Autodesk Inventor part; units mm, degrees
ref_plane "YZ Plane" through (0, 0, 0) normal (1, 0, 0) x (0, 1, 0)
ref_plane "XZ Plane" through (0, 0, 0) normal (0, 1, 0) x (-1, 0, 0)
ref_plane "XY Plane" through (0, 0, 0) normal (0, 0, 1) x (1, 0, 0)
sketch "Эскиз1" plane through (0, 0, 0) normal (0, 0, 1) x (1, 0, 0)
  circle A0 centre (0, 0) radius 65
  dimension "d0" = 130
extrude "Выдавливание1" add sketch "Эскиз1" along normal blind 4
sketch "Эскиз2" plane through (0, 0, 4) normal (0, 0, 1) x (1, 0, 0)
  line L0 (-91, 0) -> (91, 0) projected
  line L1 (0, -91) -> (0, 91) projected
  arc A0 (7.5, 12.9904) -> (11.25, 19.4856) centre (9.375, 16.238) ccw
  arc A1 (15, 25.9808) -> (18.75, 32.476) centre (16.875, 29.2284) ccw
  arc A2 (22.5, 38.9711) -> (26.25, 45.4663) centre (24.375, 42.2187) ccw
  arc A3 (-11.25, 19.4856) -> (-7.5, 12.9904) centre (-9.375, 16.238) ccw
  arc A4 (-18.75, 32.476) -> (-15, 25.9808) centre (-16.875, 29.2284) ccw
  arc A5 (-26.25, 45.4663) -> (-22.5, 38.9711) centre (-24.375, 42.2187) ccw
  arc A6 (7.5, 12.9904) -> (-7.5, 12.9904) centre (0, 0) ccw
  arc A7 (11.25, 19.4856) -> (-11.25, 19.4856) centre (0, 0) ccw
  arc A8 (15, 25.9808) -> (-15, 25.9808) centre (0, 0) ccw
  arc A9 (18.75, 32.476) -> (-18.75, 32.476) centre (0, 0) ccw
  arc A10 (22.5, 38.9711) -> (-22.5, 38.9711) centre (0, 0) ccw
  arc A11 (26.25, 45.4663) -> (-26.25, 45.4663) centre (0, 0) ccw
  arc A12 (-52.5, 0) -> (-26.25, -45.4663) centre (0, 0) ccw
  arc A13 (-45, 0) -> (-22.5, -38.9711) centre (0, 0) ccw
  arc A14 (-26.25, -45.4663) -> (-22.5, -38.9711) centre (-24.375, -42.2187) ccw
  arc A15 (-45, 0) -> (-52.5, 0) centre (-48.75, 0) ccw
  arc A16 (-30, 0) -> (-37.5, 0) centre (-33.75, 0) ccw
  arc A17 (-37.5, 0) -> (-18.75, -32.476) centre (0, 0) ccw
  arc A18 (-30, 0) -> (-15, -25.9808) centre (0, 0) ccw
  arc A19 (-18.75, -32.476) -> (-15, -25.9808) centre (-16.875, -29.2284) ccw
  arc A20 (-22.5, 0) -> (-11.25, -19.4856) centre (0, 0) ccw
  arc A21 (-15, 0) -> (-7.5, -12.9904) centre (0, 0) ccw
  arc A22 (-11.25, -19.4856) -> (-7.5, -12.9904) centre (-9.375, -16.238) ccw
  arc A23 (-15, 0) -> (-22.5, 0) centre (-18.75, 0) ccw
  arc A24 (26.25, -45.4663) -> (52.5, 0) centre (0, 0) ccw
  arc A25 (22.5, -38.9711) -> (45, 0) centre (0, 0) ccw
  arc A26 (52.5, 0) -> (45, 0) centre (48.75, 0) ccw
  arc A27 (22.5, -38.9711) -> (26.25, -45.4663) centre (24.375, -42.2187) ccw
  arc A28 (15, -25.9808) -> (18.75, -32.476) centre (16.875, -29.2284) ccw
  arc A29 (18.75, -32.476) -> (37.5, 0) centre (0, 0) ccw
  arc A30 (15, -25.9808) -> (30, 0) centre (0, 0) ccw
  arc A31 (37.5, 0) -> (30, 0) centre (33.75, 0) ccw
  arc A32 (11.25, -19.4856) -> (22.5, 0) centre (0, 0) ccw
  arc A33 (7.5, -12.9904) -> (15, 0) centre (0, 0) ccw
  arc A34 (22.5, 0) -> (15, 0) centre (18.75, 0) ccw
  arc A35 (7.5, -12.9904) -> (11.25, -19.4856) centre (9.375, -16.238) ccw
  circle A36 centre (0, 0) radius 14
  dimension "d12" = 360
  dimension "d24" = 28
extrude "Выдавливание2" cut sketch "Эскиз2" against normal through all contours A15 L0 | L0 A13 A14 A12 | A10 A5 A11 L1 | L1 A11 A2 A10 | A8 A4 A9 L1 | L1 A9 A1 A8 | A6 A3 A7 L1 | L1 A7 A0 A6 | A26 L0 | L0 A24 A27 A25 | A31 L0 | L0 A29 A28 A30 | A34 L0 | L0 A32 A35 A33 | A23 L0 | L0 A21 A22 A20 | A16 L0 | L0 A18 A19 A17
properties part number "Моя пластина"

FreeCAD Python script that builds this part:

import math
import FreeCAD as App
import Part
import Sketcher
Q = App.Units.Quantity

doc = App.newDocument("Part")
body = doc.addObject("PartDesign::Body", "Body")

sketch1 = body.newObject("Sketcher::SketchObject", "Sketch")
sketch1.AttachmentSupport = (doc.getObject("XY_Plane"), [""])
sketch1.MapMode = "FlatFace"
sketch1.addGeometry(Part.Circle(App.Vector(0, 0, 0), App.Vector(0, 0, 1), 65), False)
sketch1.addConstraint(Sketcher.Constraint("Coincident", 0, 3, -1, 1))
sketch1.addConstraint(Sketcher.Constraint("Diameter", 0, Q("130 mm")))
pad1 = body.newObject("PartDesign::Pad", "Pad")
pad1.Profile = sketch1
pad1.Length = 4

sketch2 = body.newObject("Sketcher::SketchObject", "Sketch001")
sketch2.AttachmentSupport = (doc.getObject("XY_Plane"), [""])
sketch2.MapMode = "FlatFace"
sketch2.AttachmentOffset = App.Placement(App.Vector(0, 0, 4), App.Rotation())
sketch2.addGeometry(Part.ArcOfCircle(Part.Circle(App.Vector(-48.8, 0, 0), App.Vector(0, 0, 1), 3.8), math.radians(0), math.radians(180)), False)
sketch2.addGeometry(Part.ArcOfCircle(Part.Circle(App.Vector(0, 0, 0), App.Vector(0, 0, 1), 52.5), math.radians(180), math.radians(240)), False)
sketch2.addGeometry(Part.ArcOfCircle(Part.Circle(App.Vector(-24.4, -42.2, 0), App.Vector(0, 0, 1), 3.8), math.radians(-120), math.radians(60)), False)
sketch2.addGeometry(Part.ArcOfCircle(Part.Circle(App.Vector(0, 0, 0), App.Vector(0, 0, 1), 45), math.radians(180), math.radians(240)), False)
sketch2.addGeometry(Part.ArcOfCircle(Part.Circle(App.Vector(0, 0, 0), App.Vector(0, 0, 1), 45), math.radians(60), math.radians(120)), False)
sketch2.addGeometry(Part.ArcOfCircle(Part.Circle(App.Vector(24.4, 42.2, 0), App.Vector(0, 0, 1), 3.8), math.radians(-120), math.radians(60)), False)
sketch2.addGeometry(Part.ArcOfCircle(Part.Circle(App.Vector(0, 0, 0), App.Vector(0, 0, 1), 52.5), math.radians(60), math.radians(120)), False)
sketch2.addGeometry(Part.ArcOfCircle(Part.Circle(App.Vector(-24.4, 42.2, 0), App.Vector(0, 0, 1), 3.8), math.radians(120), math.radians(300)), False)
sketch2.addGeometry(Part.ArcOfCircle(Part.Circle(App.Vector(0, 0, 0), App.Vector(0, 0, 1), 30), math.radians(60), math.radians(120)), False)
sketch2.addGeometry(Part.ArcOfCircle(Part.Circle(App.Vector(16.9, 29.2, 0), App.Vector(0, 0, 1), 3.8), math.radians(-120), math.radians(60)), False)
sketch2.addGeometry(Part.ArcOfCircle(Part.Circle(App.Vector(0, 0, 0), App.Vector(0, 0, 1), 37.5), math.radians(60), math.radians(120)), False)
sketch2.addGeometry(Part.ArcOfCircle(Part.Circle(App.Vector(-16.9, 29.2, 0), App.Vector(0, 0, 1), 3.8), math.radians(120), math.radians(300)), False)
sketch2.addGeometry(Part.ArcOfCircle(Part.Circle(App.Vector(0, 0, 0), App.Vector(0, 0, 1), 15), math.radians(60), math.radians(120)), False)
sketch2.addGeometry(Part.ArcOfCircle(Part.Circle(App.Vector(9.4, 16.2, 0), App.Vector(0, 0, 1), 3.8), math.radians(-120), math.radians(60)), False)
sketch2.addGeometry(Part.ArcOfCircle(Part.Circle(App.Vector(0, 0, 0), App.Vector(0, 0, 1), 22.5), math.radians(60), math.radians(120)), False)
sketch2.addGeometry(Part.ArcOfCircle(Part.Circle(App.Vector(-9.4, 16.2, 0), App.Vector(0, 0, 1), 3.8), math.radians(120), math.radians(300)), False)
sketch2.addGeometry(Part.ArcOfCircle(Part.Circle(App.Vector(48.8, 0, 0), App.Vector(0, 0, 1), 3.8), math.radians(0), math.radians(180)), False)
sketch2.addGeometry(Part.ArcOfCircle(Part.Circle(App.Vector(0, 0, 0), App.Vector(0, 0, 1), 45), math.radians(-60), math.radians(0)), False)
sketch2.addGeometry(Part.ArcOfCircle(Part.Circle(App.Vector(24.4, -42.2, 0), App.Vector(0, 0, 1), 3.8), math.radians(120), math.radians(300)), False)
sketch2.addGeometry(Part.ArcOfCircle(Part.Circle(App.Vector(0, 0, 0), App.Vector(0, 0, 1), 52.5), math.radians(-60), math.radians(0)), False)
sketch2.addGeometry(Part.ArcOfCircle(Part.Circle(App.Vector(33.8, 0, 0), App.Vector(0, 0, 1), 3.8), math.radians(0), math.radians(180)), False)
sketch2.addGeometry(Part.ArcOfCircle(Part.Circle(App.Vector(0, 0, 0), App.Vector(0, 0, 1), 30), math.radians(-60), math.radians(0)), False)
sketch2.addGeometry(Part.ArcOfCircle(Part.Circle(App.Vector(16.9, -29.2, 0), App.Vector(0, 0, 1), 3.8), math.radians(120), math.radians(300)), False)
sketch2.addGeometry(Part.ArcOfCircle(Part.Circle(App.Vector(0, 0, 0), App.Vector(0, 0, 1), 37.5), math.radians(-60), math.radians(0)), False)
sketch2.addGeometry(Part.ArcOfCircle(Part.Circle(App.Vector(18.8, 0, 0), App.Vector(0, 0, 1), 3.8), math.radians(0), math.radians(180)), False)
sketch2.addGeometry(Part.ArcOfCircle(Part.Circle(App.Vector(0, 0, 0), App.Vector(0, 0, 1), 15), math.radians(-60), math.radians(0)), False)
sketch2.addGeometry(Part.ArcOfCircle(Part.Circle(App.Vector(9.4, -16.2, 0), App.Vector(0, 0, 1), 3.8), math.radians(120), math.radians(300)), False)
sketch2.addGeometry(Part.ArcOfCircle(Part.Circle(App.Vector(0, 0, 0), App.Vector(0, 0, 1), 22.5), math.radians(-60), math.radians(0)), False)
sketch2.addGeometry(Part.ArcOfCircle(Part.Circle(App.Vector(-18.8, 0, 0), App.Vector(0, 0, 1), 3.8), math.radians(0), math.radians(180)), False)
sketch2.addGeometry(Part.ArcOfCircle(Part.Circle(App.Vector(0, 0, 0), App.Vector(0, 0, 1), 22.5), math.radians(180), math.radians(240)), False)
sketch2.addGeometry(Part.ArcOfCircle(Part.Circle(App.Vector(-9.4, -16.2, 0), App.Vector(0, 0, 1), 3.8), math.radians(-120), math.radians(60)), False)
sketch2.addGeometry(Part.ArcOfCircle(Part.Circle(App.Vector(0, 0, 0), App.Vector(0, 0, 1), 15), math.radians(180), math.radians(240)), False)
sketch2.addGeometry(Part.ArcOfCircle(Part.Circle(App.Vector(-33.8, 0, 0), App.Vector(0, 0, 1), 3.8), math.radians(0), math.radians(180)), False)
sketch2.addGeometry(Part.ArcOfCircle(Part.Circle(App.Vector(0, 0, 0), App.Vector(0, 0, 1), 37.5), math.radians(180), math.radians(240)), False)
sketch2.addGeometry(Part.ArcOfCircle(Part.Circle(App.Vector(-16.9, -29.2, 0), App.Vector(0, 0, 1), 3.8), math.radians(-120), math.radians(60)), False)
sketch2.addGeometry(Part.ArcOfCircle(Part.Circle(App.Vector(0, 0, 0), App.Vector(0, 0, 1), 30), math.radians(180), math.radians(240)), False)
sketch2.addConstraint(Sketcher.Constraint("Tangent", 0, 2, 1, 1))
sketch2.addConstraint(Sketcher.Constraint("Tangent", 1, 2, 2, 1))
sketch2.addConstraint(Sketcher.Constraint("Tangent", 2, 2, 3, 2))
sketch2.addConstraint(Sketcher.Constraint("Tangent", 3, 1, 0, 1))
sketch2.addConstraint(Sketcher.Constraint("Tangent", 4, 1, 5, 1))
sketch2.addConstraint(Sketcher.Constraint("Tangent", 5, 2, 6, 1))
sketch2.addConstraint(Sketcher.Constraint("Tangent", 6, 2, 7, 1))
sketch2.addConstraint(Sketcher.Constraint("Tangent", 7, 2, 4, 2))
sketch2.addConstraint(Sketcher.Constraint("Tangent", 8, 1, 9, 1))
sketch2.addConstraint(Sketcher.Constraint("Tangent", 9, 2, 10, 1))
sketch2.addConstraint(Sketcher.Constraint("Tangent", 10, 2, 11, 1))
sketch2.addConstraint(Sketcher.Constraint("Tangent", 11, 2, 8, 2))
sketch2.addConstraint(Sketcher.Constraint("Tangent", 12, 1, 13, 1))
sketch2.addConstraint(Sketcher.Constraint("Tangent", 13, 2, 14, 1))
sketch2.addConstraint(Sketcher.Constraint("Tangent", 14, 2, 15, 1))
sketch2.addConstraint(Sketcher.Constraint("Tangent", 15, 2, 12, 2))
sketch2.addConstraint(Sketcher.Constraint("Tangent", 16, 2, 17, 2))
sketch2.addConstraint(Sketcher.Constraint("Tangent", 17, 1, 18, 1))
sketch2.addConstraint(Sketcher.Constraint("Tangent", 18, 2, 19, 1))
sketch2.addConstraint(Sketcher.Constraint("Tangent", 19, 2, 16, 1))
sketch2.addConstraint(Sketcher.Constraint("Tangent", 20, 2, 21, 2))
sketch2.addConstraint(Sketcher.Constraint("Tangent", 21, 1, 22, 1))
sketch2.addConstraint(Sketcher.Constraint("Tangent", 22, 2, 23, 1))
sketch2.addConstraint(Sketcher.Constraint("Tangent", 23, 2, 20, 1))
sketch2.addConstraint(Sketcher.Constraint("Tangent", 24, 2, 25, 2))
sketch2.addConstraint(Sketcher.Constraint("Tangent", 25, 1, 26, 1))
sketch2.addConstraint(Sketcher.Constraint("Tangent", 26, 2, 27, 1))
sketch2.addConstraint(Sketcher.Constraint("Tangent", 27, 2, 24, 1))
sketch2.addConstraint(Sketcher.Constraint("Tangent", 28, 2, 29, 1))
sketch2.addConstraint(Sketcher.Constraint("Tangent", 29, 2, 30, 1))
sketch2.addConstraint(Sketcher.Constraint("Tangent", 30, 2, 31, 2))
sketch2.addConstraint(Sketcher.Constraint("Tangent", 31, 1, 28, 1))
sketch2.addConstraint(Sketcher.Constraint("Tangent", 32, 2, 33, 1))
sketch2.addConstraint(Sketcher.Constraint("Tangent", 33, 2, 34, 1))
sketch2.addConstraint(Sketcher.Constraint("Tangent", 34, 2, 35, 2))
sketch2.addConstraint(Sketcher.Constraint("Tangent", 35, 1, 32, 1))
sketch2.addConstraint(Sketcher.Constraint("Coincident", 1, 3, -1, 1))
sketch2.addConstraint(Sketcher.Constraint("Coincident", 3, 3, -1, 1))
sketch2.addConstraint(Sketcher.Constraint("Coincident", 4, 3, -1, 1))
sketch2.addConstraint(Sketcher.Constraint("Coincident", 6, 3, -1, 1))
sketch2.addConstraint(Sketcher.Constraint("Coincident", 8, 3, -1, 1))
sketch2.addConstraint(Sketcher.Constraint("Coincident", 10, 3, -1, 1))
sketch2.addConstraint(Sketcher.Constraint("Coincident", 12, 3, -1, 1))
sketch2.addConstraint(Sketcher.Constraint("Coincident", 14, 3, -1, 1))
sketch2.addConstraint(Sketcher.Constraint("Coincident", 17, 3, -1, 1))
sketch2.addConstraint(Sketcher.Constraint("Coincident", 19, 3, -1, 1))
sketch2.addConstraint(Sketcher.Constraint("Coincident", 21, 3, -1, 1))
sketch2.addConstraint(Sketcher.Constraint("Coincident", 23, 3, -1, 1))
sketch2.addConstraint(Sketcher.Constraint("Coincident", 25, 3, -1, 1))
sketch2.addConstraint(Sketcher.Constraint("Coincident", 27, 3, -1, 1))
sketch2.addConstraint(Sketcher.Constraint("Coincident", 29, 3, -1, 1))
sketch2.addConstraint(Sketcher.Constraint("Coincident", 31, 3, -1, 1))
sketch2.addConstraint(Sketcher.Constraint("Coincident", 33, 3, -1, 1))
sketch2.addConstraint(Sketcher.Constraint("Coincident", 35, 3, -1, 1))
sketch2.addConstraint(Sketcher.Constraint("Equal", 3, 4))
sketch2.addConstraint(Sketcher.Constraint("Equal", 2, 5))
sketch2.addConstraint(Sketcher.Constraint("Equal", 7, 9))
sketch2.addConstraint(Sketcher.Constraint("Equal", 11, 13))
sketch2.addConstraint(Sketcher.Constraint("Equal", 15, 16))
sketch2.addConstraint(Sketcher.Constraint("Equal", 4, 17))
sketch2.addConstraint(Sketcher.Constraint("Equal", 18, 20))
sketch2.addConstraint(Sketcher.Constraint("Equal", 8, 21))
sketch2.addConstraint(Sketcher.Constraint("Equal", 22, 24))
sketch2.addConstraint(Sketcher.Constraint("Equal", 12, 25))
sketch2.addConstraint(Sketcher.Constraint("Equal", 26, 28))
sketch2.addConstraint(Sketcher.Constraint("Equal", 27, 29))
sketch2.addConstraint(Sketcher.Constraint("Equal", 30, 32))
sketch2.addConstraint(Sketcher.Constraint("Equal", 23, 33))
sketch2.addConstraint(Sketcher.Constraint("PointOnObject", 0, 3, -1))
sketch2.addConstraint(Sketcher.Constraint("PointOnObject", 16, 3, -1))
sketch2.addConstraint(Sketcher.Constraint("PointOnObject", 20, 3, -1))
sketch2.addConstraint(Sketcher.Constraint("PointOnObject", 24, 3, -1))
sketch2.addConstraint(Sketcher.Constraint("PointOnObject", 28, 3, -1))
sketch2.addConstraint(Sketcher.Constraint("PointOnObject", 32, 3, -1))
sketch2.addConstraint(Sketcher.Constraint("Horizontal", 5, 3, 7, 3))
sketch2.addConstraint(Sketcher.Constraint("Horizontal", 9, 3, 11, 3))
sketch2.addConstraint(Sketcher.Constraint("Horizontal", 13, 3, 15, 3))
sketch2.addConstraint(Sketcher.Constraint("Horizontal", 2, 3, 18, 3))
sketch2.addConstraint(Sketcher.Constraint("Horizontal", 26, 3, 30, 3))
sketch2.addConstraint(Sketcher.Constraint("Horizontal", 22, 3, 34, 3))
sketch2.addConstraint(Sketcher.Constraint("Vertical", 2, 3, 7, 3))
sketch2.addConstraint(Sketcher.Constraint("Vertical", 9, 3, 22, 3))
sketch2.addConstraint(Sketcher.Constraint("Vertical", 13, 3, 26, 3))
sketch2.addConstraint(Sketcher.Constraint("Vertical", 24, 3, 9, 2))
sketch2.addConstraint(Sketcher.Constraint("Vertical", 21, 1, 24, 2))
sketch2.addConstraint(Sketcher.Constraint("Vertical", 17, 1, 27, 2))
sketch2.addConstraint(Sketcher.Constraint("Radius", 3, Q("45 mm")))
sketch2.addConstraint(Sketcher.Constraint("Radius", 8, Q("30 mm")))
sketch2.addConstraint(Sketcher.Constraint("Radius", 1, Q("52.5 mm")))
sketch2.addConstraint(Sketcher.Constraint("DistanceX", -1, 1, 12, 1, Q("7.5 mm")))
pocket1 = body.newObject("PartDesign::Pocket", "Pocket")
pocket1.Profile = sketch2
pocket1.Type = "ThroughAll"

doc.recompute()
